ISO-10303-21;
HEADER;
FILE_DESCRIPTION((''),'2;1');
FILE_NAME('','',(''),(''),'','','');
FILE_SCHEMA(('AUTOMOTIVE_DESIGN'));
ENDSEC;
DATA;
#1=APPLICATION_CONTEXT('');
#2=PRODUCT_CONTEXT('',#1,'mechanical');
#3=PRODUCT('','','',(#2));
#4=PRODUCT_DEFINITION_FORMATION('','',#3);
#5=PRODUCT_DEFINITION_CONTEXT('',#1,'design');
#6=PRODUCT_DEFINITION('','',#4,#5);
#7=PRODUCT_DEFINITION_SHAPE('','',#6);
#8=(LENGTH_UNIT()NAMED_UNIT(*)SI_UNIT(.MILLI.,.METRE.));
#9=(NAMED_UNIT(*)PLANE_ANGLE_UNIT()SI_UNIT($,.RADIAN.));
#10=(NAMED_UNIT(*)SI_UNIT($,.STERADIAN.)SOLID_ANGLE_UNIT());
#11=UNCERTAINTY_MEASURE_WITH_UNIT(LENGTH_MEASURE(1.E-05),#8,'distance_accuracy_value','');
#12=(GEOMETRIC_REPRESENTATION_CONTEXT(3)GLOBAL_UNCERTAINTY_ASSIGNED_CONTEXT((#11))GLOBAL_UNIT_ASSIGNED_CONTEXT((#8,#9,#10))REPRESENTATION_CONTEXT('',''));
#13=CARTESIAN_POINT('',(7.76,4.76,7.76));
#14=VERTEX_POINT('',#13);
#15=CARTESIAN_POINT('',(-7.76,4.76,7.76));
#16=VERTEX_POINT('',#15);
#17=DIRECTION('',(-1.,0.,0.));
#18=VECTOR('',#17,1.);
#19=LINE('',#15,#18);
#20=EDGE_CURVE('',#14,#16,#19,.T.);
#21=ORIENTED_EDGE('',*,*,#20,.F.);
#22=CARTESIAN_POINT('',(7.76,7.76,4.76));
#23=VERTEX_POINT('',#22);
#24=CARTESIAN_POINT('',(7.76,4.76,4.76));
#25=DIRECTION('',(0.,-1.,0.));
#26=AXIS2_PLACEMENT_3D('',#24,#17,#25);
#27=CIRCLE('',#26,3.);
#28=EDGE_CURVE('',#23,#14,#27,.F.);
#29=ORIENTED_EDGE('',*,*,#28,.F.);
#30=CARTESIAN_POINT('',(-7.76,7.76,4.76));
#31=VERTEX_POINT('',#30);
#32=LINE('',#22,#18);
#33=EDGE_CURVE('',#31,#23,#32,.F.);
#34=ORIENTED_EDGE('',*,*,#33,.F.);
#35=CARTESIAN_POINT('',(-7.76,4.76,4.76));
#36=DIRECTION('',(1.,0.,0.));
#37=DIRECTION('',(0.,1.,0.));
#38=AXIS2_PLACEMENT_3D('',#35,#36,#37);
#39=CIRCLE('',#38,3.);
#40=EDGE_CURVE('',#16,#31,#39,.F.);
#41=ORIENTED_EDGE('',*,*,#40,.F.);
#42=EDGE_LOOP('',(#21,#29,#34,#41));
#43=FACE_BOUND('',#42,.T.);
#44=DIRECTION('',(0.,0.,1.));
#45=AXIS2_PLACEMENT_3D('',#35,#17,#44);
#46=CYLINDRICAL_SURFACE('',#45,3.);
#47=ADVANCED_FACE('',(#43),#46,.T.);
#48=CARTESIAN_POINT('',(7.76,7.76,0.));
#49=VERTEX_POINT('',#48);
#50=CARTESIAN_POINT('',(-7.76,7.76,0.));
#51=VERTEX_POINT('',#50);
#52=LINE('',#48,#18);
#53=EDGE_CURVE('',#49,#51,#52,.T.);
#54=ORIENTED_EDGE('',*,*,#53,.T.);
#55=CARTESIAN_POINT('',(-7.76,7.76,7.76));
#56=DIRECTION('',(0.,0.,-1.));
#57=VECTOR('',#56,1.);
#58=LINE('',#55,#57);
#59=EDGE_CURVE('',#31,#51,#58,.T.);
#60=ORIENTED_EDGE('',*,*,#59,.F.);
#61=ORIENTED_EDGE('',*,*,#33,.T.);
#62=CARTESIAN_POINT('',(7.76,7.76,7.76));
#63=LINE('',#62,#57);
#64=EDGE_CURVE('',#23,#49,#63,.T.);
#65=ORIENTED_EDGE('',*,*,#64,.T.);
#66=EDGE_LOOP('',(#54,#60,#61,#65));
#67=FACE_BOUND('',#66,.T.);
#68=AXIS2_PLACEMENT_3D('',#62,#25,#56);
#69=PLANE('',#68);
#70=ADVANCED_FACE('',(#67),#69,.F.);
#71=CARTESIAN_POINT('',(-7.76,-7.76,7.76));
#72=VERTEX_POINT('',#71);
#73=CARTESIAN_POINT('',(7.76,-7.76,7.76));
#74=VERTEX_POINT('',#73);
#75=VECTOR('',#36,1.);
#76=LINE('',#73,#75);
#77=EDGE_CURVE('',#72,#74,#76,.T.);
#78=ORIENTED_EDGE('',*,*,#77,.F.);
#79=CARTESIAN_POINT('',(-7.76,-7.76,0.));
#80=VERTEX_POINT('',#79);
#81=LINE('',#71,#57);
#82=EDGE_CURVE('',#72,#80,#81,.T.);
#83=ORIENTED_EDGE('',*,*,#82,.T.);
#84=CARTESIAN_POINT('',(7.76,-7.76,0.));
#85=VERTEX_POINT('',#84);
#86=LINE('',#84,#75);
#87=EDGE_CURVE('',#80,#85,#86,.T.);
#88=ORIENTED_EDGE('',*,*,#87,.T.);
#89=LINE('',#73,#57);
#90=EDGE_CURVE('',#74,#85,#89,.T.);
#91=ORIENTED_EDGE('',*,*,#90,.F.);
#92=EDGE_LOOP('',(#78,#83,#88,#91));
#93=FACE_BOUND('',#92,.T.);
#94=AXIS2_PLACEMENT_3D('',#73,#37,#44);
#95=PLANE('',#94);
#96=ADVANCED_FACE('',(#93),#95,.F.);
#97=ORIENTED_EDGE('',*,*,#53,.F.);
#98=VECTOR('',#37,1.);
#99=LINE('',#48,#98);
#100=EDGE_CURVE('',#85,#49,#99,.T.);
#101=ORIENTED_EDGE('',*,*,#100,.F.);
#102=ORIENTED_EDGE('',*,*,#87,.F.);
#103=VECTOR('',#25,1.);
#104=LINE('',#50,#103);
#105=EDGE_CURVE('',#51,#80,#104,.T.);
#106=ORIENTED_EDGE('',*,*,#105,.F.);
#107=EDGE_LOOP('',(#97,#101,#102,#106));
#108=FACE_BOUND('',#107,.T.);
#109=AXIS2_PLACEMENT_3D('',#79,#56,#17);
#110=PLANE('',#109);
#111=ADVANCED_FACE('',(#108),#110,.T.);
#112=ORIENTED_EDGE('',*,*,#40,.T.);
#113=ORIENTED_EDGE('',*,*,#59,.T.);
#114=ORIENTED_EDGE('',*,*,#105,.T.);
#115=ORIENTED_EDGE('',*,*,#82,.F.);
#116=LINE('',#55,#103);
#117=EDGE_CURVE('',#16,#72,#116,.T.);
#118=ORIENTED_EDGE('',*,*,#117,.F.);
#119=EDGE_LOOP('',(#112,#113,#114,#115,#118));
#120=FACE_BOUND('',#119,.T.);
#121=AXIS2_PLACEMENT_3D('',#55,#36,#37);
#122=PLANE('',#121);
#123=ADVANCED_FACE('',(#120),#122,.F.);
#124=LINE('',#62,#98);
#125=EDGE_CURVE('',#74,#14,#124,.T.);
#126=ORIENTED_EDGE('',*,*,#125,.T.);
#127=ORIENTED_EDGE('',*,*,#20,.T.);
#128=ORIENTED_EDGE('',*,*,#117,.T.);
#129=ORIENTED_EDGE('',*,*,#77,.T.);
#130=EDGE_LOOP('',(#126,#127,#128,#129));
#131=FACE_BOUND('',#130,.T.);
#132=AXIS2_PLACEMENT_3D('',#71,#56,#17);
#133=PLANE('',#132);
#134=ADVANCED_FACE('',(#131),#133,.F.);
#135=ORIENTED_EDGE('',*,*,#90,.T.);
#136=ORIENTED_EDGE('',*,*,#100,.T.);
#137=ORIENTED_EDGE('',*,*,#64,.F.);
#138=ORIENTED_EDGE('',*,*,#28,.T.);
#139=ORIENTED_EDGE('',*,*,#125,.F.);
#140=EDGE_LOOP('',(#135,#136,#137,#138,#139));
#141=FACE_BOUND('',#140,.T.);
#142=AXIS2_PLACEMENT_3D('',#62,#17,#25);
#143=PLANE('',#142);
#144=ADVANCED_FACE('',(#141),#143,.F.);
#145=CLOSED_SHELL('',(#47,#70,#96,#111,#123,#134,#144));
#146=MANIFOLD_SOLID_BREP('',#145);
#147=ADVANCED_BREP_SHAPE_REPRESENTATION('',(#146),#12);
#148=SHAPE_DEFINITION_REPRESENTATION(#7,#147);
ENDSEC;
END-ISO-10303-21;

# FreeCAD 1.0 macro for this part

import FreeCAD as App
import Part
import Sketcher

V = App.Vector


def edges_at(feature, points):
    """Names of the edges that pass closest to the given points."""
    edges = feature.Shape.Edges
    near = lambda p: min(range(len(edges)), key=lambda i: edges[i].distToShape(Part.Vertex(*p))[0])
    return sorted({f"Edge{near(p) + 1}" for p in points})

doc = App.newDocument("Part")
body = doc.addObject("PartDesign::Body", "Body")

sketch1 = body.newObject("Sketcher::SketchObject", "Sketch")
sketch1.AttachmentSupport = (doc.getObject("XY_Plane"), [""])
sketch1.MapMode = "FlatFace"
sketch1.addGeometry(Part.LineSegment(V(-8, 8, 0), V(-8, -8, 0)), False)
sketch1.addGeometry(Part.LineSegment(V(-8, -8, 0), V(8, -8, 0)), False)
sketch1.addGeometry(Part.LineSegment(V(8, -8, 0), V(8, 8, 0)), False)
sketch1.addGeometry(Part.LineSegment(V(8, 8, 0), V(-8, 8, 0)), False)
sketch1.addConstraint(Sketcher.Constraint("Coincident", 0, 2, 1, 1))
sketch1.addConstraint(Sketcher.Constraint("Coincident", 1, 2, 2, 1))
sketch1.addConstraint(Sketcher.Constraint("Coincident", 2, 2, 3, 1))
sketch1.addConstraint(Sketcher.Constraint("Coincident", 3, 2, 0, 1))
sketch1.addConstraint(Sketcher.Constraint("Vertical", 0))
sketch1.addConstraint(Sketcher.Constraint("Horizontal", 1))
sketch1.addConstraint(Sketcher.Constraint("Vertical", 2))
sketch1.addConstraint(Sketcher.Constraint("Horizontal", 3))
sketch1.addConstraint(Sketcher.Constraint("Symmetric", 0, 2, 2, 2, -1, 1))
sketch1.addConstraint(Sketcher.Constraint("Equal", 3, 0))
sketch1.addConstraint(Sketcher.Constraint("DistanceX", 1, 1, 1, 2, 15.52))
pad1 = body.newObject("PartDesign::Pad", "Pad")
pad1.Profile = sketch1
pad1.Length = 7.76
doc.recompute()

fillet = body.newObject("PartDesign::Fillet", "Fillet")
fillet.Base = (pad1, edges_at(pad1, [(0, 7.76, 7.76)]))
fillet.Radius = 3

doc.recompute()
